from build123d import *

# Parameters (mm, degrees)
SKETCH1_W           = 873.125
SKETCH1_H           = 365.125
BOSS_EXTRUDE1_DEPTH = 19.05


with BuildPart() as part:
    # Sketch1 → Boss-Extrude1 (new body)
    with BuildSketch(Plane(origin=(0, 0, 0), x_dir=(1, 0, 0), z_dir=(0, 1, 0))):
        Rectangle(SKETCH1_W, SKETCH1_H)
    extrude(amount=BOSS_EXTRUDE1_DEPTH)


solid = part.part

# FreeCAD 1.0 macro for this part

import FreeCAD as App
import Part
import Sketcher
from FreeCAD import Vector
Q = App.Units.Quantity

doc = App.newDocument("Part")
body = doc.addObject("PartDesign::Body", "Body")

# Sketch on XZ plane
sketch1 = doc.addObject("Sketcher::SketchObject", "Sketch")
body.addObject(sketch1)
sketch1.AttachmentSupport = (doc.XZ_Plane, [""])
sketch1.MapMode = "FlatFace"
sketch1.addGeometry(Part.LineSegment(Vector(-437, -183, 0), Vector(-437, 183, 0)), False)
sketch1.addGeometry(Part.LineSegment(Vector(-437, 183, 0), Vector(437, 183, 0)), False)
sketch1.addGeometry(Part.LineSegment(Vector(437, 183, 0), Vector(437, -183, 0)), False)
sketch1.addGeometry(Part.LineSegment(Vector(437, -183, 0), Vector(-437, -183, 0)), False)
sketch1.addConstraint(Sketcher.Constraint("Coincident", 0, 2, 1, 1))
sketch1.addConstraint(Sketcher.Constraint("Coincident", 1, 2, 2, 1))
sketch1.addConstraint(Sketcher.Constraint("Coincident", 2, 2, 3, 1))
sketch1.addConstraint(Sketcher.Constraint("Coincident", 3, 2, 0, 1))
sketch1.addConstraint(Sketcher.Constraint("Vertical", 0))
sketch1.addConstraint(Sketcher.Constraint("Horizontal", 1))
sketch1.addConstraint(Sketcher.Constraint("Vertical", 2))
sketch1.addConstraint(Sketcher.Constraint("Horizontal", 3))
sketch1.addConstraint(Sketcher.Constraint("Symmetric", 0, 2, 2, 2, -1, 1))
sketch1.addConstraint(Sketcher.Constraint("DistanceX", 1, 1, 1, 2, Q("34.375 in")))
sketch1.addConstraint(Sketcher.Constraint("DistanceY", 0, 1, 0, 2, Q("14.375 in")))
pad1 = doc.addObject("PartDesign::Pad", "Pad")
body.addObject(pad1)
pad1.Profile = sketch1
pad1.Length = Q("0.75 in")
pad1.Reversed = True

doc.recompute()
